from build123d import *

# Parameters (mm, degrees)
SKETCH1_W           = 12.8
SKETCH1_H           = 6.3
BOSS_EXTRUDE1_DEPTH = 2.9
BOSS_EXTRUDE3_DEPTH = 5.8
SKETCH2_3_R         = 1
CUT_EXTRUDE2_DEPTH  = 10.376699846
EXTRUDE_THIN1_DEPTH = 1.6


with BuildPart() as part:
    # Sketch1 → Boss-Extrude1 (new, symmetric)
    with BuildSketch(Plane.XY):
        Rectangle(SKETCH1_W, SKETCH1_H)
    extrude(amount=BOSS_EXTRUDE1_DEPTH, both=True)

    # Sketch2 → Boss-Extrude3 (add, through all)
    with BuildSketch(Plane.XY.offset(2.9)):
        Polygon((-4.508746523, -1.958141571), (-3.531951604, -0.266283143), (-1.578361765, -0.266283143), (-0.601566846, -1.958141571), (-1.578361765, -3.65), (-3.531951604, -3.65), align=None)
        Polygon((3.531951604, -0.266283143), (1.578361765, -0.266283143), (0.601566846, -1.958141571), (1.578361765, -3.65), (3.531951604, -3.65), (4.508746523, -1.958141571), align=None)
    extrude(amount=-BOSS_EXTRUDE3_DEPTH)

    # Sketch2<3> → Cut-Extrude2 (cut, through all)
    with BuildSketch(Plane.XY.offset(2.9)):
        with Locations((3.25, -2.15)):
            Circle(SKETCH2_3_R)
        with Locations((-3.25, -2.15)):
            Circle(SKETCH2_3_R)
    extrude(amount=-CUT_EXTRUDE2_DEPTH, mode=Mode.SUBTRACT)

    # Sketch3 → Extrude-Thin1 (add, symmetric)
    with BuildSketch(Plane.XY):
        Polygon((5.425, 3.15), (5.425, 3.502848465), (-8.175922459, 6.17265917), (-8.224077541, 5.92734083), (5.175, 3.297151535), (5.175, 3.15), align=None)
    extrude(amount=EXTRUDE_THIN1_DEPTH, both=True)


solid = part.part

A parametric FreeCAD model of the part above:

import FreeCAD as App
import Part
import Sketcher
Q = App.Units.Quantity

doc = App.newDocument("Part")
body = doc.addObject("PartDesign::Body", "Body")

# Sketch on XY plane
sketch1 = body.newObject("Sketcher::SketchObject", "Sketch")
sketch1.AttachmentSupport = (doc.getObject("XY_Plane"), [""])
sketch1.MapMode = "FlatFace"
sketch1.addGeometry(Part.LineSegment(App.Vector(-6, 3, 0), App.Vector(-6, -3, 0)), False)
sketch1.addGeometry(Part.LineSegment(App.Vector(-6, -3, 0), App.Vector(6, -3, 0)), False)
sketch1.addGeometry(Part.LineSegment(App.Vector(6, -3, 0), App.Vector(6, 3, 0)), False)
sketch1.addGeometry(Part.LineSegment(App.Vector(6, 3, 0), App.Vector(-6, 3, 0)), False)
sketch1.addConstraint(Sketcher.Constraint("Coincident", 0, 2, 1, 1))
sketch1.addConstraint(Sketcher.Constraint("Coincident", 1, 2, 2, 1))
sketch1.addConstraint(Sketcher.Constraint("Coincident", 2, 2, 3, 1))
sketch1.addConstraint(Sketcher.Constraint("Coincident", 3, 2, 0, 1))
sketch1.addConstraint(Sketcher.Constraint("Vertical", 0))
sketch1.addConstraint(Sketcher.Constraint("Horizontal", 1))
sketch1.addConstraint(Sketcher.Constraint("Vertical", 2))
sketch1.addConstraint(Sketcher.Constraint("Horizontal", 3))
sketch1.addConstraint(Sketcher.Constraint("Symmetric", 0, 2, 2, 2, -1, 1))
sketch1.addConstraint(Sketcher.Constraint("DistanceX", 1, 1, 1, 2, Q("12.8 mm")))
sketch1.addConstraint(Sketcher.Constraint("DistanceY", 0, 2, 0, 1, Q("6.3 mm")))
pad1 = body.newObject("PartDesign::Pad", "Pad")
pad1.Profile = sketch1
pad1.Length = 5.8
pad1.Midplane = True

# Sketch on XY plane
sketch2 = body.newObject("Sketcher::SketchObject", "Sketch001")
sketch2.AttachmentSupport = (doc.getObject("XY_Plane"), [""])
sketch2.MapMode = "FlatFace"
sketch2.AttachmentOffset = App.Placement(App.Vector(0, 0, 2.9), App.Rotation())
sketch2.addGeometry(Part.LineSegment(App.Vector(-3.5, -0.3, 0), App.Vector(-4.5, -2, 0)), False)
sketch2.addGeometry(Part.LineSegment(App.Vector(-4.5, -2, 0), App.Vector(-3.5, -3.6, 0)), False)
sketch2.addGeometry(Part.LineSegment(App.Vector(-3.5, -3.6, 0), App.Vector(-1.6, -3.6, 0)), False)
sketch2.addGeometry(Part.LineSegment(App.Vector(-1.6, -3.6, 0), App.Vector(-0.6, -2, 0)), False)
sketch2.addGeometry(Part.LineSegment(App.Vector(-0.6, -2, 0), App.Vector(-1.6, -0.3, 0)), False)
sketch2.addGeometry(Part.LineSegment(App.Vector(-1.6, -0.3, 0), App.Vector(-3.5, -0.3, 0)), False)
sketch2.addGeometry(Part.LineSegment(App.Vector(3.5, -0.3, 0), App.Vector(1.6, -0.3, 0)), False)
sketch2.addGeometry(Part.LineSegment(App.Vector(1.6, -0.3, 0), App.Vector(0.6, -2, 0)), False)
sketch2.addGeometry(Part.LineSegment(App.Vector(0.6, -2, 0), App.Vector(1.6, -3.6, 0)), False)
sketch2.addGeometry(Part.LineSegment(App.Vector(1.6, -3.6, 0), App.Vector(3.5, -3.6, 0)), False)
sketch2.addGeometry(Part.LineSegment(App.Vector(3.5, -3.6, 0), App.Vector(4.5, -2, 0)), False)
sketch2.addGeometry(Part.LineSegment(App.Vector(4.5, -2, 0), App.Vector(3.5, -0.3, 0)), False)
sketch2.addConstraint(Sketcher.Constraint("Coincident", 0, 2, 1, 1))
sketch2.addConstraint(Sketcher.Constraint("Coincident", 1, 2, 2, 1))
sketch2.addConstraint(Sketcher.Constraint("Coincident", 2, 2, 3, 1))
sketch2.addConstraint(Sketcher.Constraint("Coincident", 3, 2, 4, 1))
sketch2.addConstraint(Sketcher.Constraint("Coincident", 4, 2, 5, 1))
sketch2.addConstraint(Sketcher.Constraint("Coincident", 5, 2, 0, 1))
sketch2.addConstraint(Sketcher.Constraint("Coincident", 6, 2, 7, 1))
sketch2.addConstraint(Sketcher.Constraint("Coincident", 7, 2, 8, 1))
sketch2.addConstraint(Sketcher.Constraint("Coincident", 8, 2, 9, 1))
sketch2.addConstraint(Sketcher.Constraint("Coincident", 9, 2, 10, 1))
sketch2.addConstraint(Sketcher.Constraint("Coincident", 10, 2, 11, 1))
sketch2.addConstraint(Sketcher.Constraint("Coincident", 11, 2, 6, 1))
sketch2.addConstraint(Sketcher.Constraint("Horizontal", 2))
sketch2.addConstraint(Sketcher.Constraint("Horizontal", 5))
sketch2.addConstraint(Sketcher.Constraint("Horizontal", 6))
sketch2.addConstraint(Sketcher.Constraint("Horizontal", 9))
sketch2.addConstraint(Sketcher.Constraint("Symmetric", 4, 2, 6, 2, -2))
sketch2.addConstraint(Sketcher.Constraint("Symmetric", 3, 2, 7, 2, -2))
sketch2.addConstraint(Sketcher.Constraint("Symmetric", 2, 2, 8, 2, -2))
sketch2.addConstraint(Sketcher.Constraint("Symmetric", 0, 2, 10, 2, -2))
sketch2.addConstraint(Sketcher.Constraint("Parallel", 0, 3))
sketch2.addConstraint(Sketcher.Constraint("Parallel", 1, 4))
sketch2.addConstraint(Sketcher.Constraint("Parallel", 3, 7))
sketch2.addConstraint(Sketcher.Constraint("Parallel", 7, 10))
sketch2.addConstraint(Sketcher.Constraint("Parallel", 8, 11))
sketch2.addConstraint(Sketcher.Constraint("Horizontal", 0, 2, 3, 2))
sketch2.addConstraint(Sketcher.Constraint("Vertical", 2, 2, 4, 2))
sketch2.addConstraint(Sketcher.Constraint("Angle", 0, Q("-120 deg")))
sketch2.addConstraint(Sketcher.Constraint("DistanceY", 1, 2, -1, 1, Q("3.65 mm")))
sketch2.addConstraint(Sketcher.Constraint("DistanceX", 2, 1, 2, 2, Q("1.95359 mm")))
sketch2.addConstraint(Sketcher.Constraint("Distance", 0, Q("1.95359 mm")))
sketch2.addConstraint(Sketcher.Constraint("DistanceX", 1, 2, -1, 1, Q("3.531952 mm")))
pad2 = body.newObject("PartDesign::Pad", "Pad001")
pad2.Profile = sketch2
pad2.Type = "UpToLast"
pad2.Reversed = True

# Sketch on XY plane
sketch3 = body.newObject("Sketcher::SketchObject", "Sketch002")
sketch3.AttachmentSupport = (doc.getObject("XY_Plane"), [""])
sketch3.MapMode = "FlatFace"
sketch3.AttachmentOffset = App.Placement(App.Vector(0, 0, 2.9), App.Rotation())
sketch3.addGeometry(Part.Circle(App.Vector(3.2, -2.1, 0), App.Vector(0, 0, 1), 1), False)
sketch3.addGeometry(Part.Circle(App.Vector(-3.2, -2.1, 0), App.Vector(0, 0, 1), 1), False)
sketch3.addConstraint(Sketcher.Constraint("Equal", 0, 1))
sketch3.addConstraint(Sketcher.Constraint("Symmetric", 0, 3, 1, 3, -2))
sketch3.addConstraint(Sketcher.Constraint("Diameter", 0, Q("2 mm")))
sketch3.addConstraint(Sketcher.Constraint("DistanceX", 1, 3, 0, 3, Q("6.5 mm")))
sketch3.addConstraint(Sketcher.Constraint("DistanceY", 0, 3, -1, 1, Q("2.15 mm")))
pocket1 = body.newObject("PartDesign::Pocket", "Pocket")
pocket1.Profile = sketch3
pocket1.Type = "ThroughAll"

# Sketch on XY plane
sketch4 = body.newObject("Sketcher::SketchObject", "Sketch003")
sketch4.AttachmentSupport = (doc.getObject("XY_Plane"), [""])
sketch4.MapMode = "FlatFace"
sketch4.addGeometry(Part.LineSegment(App.Vector(5.425, 3.15, 0), App.Vector(5.425, 3.502848, 0)), False)
sketch4.addGeometry(Part.LineSegment(App.Vector(5.425, 3.502848, 0), App.Vector(-8.175922, 6.172659, 0)), False)
sketch4.addGeometry(Part.LineSegment(App.Vector(-8.175922, 6.172659, 0), App.Vector(-8.224078, 5.927341, 0)), False)
sketch4.addGeometry(Part.LineSegment(App.Vector(-8.224078, 5.927341, 0), App.Vector(5.175, 3.297152, 0)), False)
sketch4.addGeometry(Part.LineSegment(App.Vector(5.175, 3.297152, 0), App.Vector(5.175, 3.15, 0)), False)
sketch4.addGeometry(Part.LineSegment(App.Vector(5.175, 3.15, 0), App.Vector(5.425, 3.15, 0)), False)
sketch4.addConstraint(Sketcher.Constraint("Coincident", 0, 2, 1, 1))
sketch4.addConstraint(Sketcher.Constraint("Coincident", 1, 2, 2, 1))
sketch4.addConstraint(Sketcher.Constraint("Coincident", 2, 2, 3, 1))
sketch4.addConstraint(Sketcher.Constraint("Coincident", 3, 2, 4, 1))
sketch4.addConstraint(Sketcher.Constraint("Coincident", 4, 2, 5, 1))
sketch4.addConstraint(Sketcher.Constraint("Coincident", 5, 2, 0, 1))
sketch4.addConstraint(Sketcher.Constraint("Vertical", 0))
sketch4.addConstraint(Sketcher.Constraint("Vertical", 4))
sketch4.addConstraint(Sketcher.Constraint("Horizontal", 5))
sketch4.addConstraint(Sketcher.Constraint("DistanceX", 5, 1, 5, 2, Q("0.25 mm")))
sketch4.addConstraint(Sketcher.Constraint("Distance", 2, Q("0.25 mm")))
sketch4.addConstraint(Sketcher.Constraint("DistanceY", -1, 1, 4, 2, Q("3.15 mm")))
sketch4.addConstraint(Sketcher.Constraint("DistanceX", -1, 1, 0, 2, Q("5.425 mm")))
sketch4.addConstraint(Sketcher.Constraint("DistanceY", 0, 1, 0, 2, Q("0.352848 mm")))
sketch4.addConstraint(Sketcher.Constraint("DistanceY", 4, 2, 4, 1, Q("0.147152 mm")))
sketch4.addConstraint(Sketcher.Constraint("DistanceY", -1, 1, 1, 2, Q("6.172659 mm")))
sketch4.addConstraint(Sketcher.Constraint("DistanceY", -1, 1, 2, 2, Q("5.927341 mm")))
sketch4.addConstraint(Sketcher.Constraint("Distance", 1, Q("13.860483 mm")))
pad3 = body.newObject("PartDesign::Pad", "Pad002")
pad3.Profile = sketch4
pad3.Length = 3.2
pad3.Midplane = True

doc.recompute()
